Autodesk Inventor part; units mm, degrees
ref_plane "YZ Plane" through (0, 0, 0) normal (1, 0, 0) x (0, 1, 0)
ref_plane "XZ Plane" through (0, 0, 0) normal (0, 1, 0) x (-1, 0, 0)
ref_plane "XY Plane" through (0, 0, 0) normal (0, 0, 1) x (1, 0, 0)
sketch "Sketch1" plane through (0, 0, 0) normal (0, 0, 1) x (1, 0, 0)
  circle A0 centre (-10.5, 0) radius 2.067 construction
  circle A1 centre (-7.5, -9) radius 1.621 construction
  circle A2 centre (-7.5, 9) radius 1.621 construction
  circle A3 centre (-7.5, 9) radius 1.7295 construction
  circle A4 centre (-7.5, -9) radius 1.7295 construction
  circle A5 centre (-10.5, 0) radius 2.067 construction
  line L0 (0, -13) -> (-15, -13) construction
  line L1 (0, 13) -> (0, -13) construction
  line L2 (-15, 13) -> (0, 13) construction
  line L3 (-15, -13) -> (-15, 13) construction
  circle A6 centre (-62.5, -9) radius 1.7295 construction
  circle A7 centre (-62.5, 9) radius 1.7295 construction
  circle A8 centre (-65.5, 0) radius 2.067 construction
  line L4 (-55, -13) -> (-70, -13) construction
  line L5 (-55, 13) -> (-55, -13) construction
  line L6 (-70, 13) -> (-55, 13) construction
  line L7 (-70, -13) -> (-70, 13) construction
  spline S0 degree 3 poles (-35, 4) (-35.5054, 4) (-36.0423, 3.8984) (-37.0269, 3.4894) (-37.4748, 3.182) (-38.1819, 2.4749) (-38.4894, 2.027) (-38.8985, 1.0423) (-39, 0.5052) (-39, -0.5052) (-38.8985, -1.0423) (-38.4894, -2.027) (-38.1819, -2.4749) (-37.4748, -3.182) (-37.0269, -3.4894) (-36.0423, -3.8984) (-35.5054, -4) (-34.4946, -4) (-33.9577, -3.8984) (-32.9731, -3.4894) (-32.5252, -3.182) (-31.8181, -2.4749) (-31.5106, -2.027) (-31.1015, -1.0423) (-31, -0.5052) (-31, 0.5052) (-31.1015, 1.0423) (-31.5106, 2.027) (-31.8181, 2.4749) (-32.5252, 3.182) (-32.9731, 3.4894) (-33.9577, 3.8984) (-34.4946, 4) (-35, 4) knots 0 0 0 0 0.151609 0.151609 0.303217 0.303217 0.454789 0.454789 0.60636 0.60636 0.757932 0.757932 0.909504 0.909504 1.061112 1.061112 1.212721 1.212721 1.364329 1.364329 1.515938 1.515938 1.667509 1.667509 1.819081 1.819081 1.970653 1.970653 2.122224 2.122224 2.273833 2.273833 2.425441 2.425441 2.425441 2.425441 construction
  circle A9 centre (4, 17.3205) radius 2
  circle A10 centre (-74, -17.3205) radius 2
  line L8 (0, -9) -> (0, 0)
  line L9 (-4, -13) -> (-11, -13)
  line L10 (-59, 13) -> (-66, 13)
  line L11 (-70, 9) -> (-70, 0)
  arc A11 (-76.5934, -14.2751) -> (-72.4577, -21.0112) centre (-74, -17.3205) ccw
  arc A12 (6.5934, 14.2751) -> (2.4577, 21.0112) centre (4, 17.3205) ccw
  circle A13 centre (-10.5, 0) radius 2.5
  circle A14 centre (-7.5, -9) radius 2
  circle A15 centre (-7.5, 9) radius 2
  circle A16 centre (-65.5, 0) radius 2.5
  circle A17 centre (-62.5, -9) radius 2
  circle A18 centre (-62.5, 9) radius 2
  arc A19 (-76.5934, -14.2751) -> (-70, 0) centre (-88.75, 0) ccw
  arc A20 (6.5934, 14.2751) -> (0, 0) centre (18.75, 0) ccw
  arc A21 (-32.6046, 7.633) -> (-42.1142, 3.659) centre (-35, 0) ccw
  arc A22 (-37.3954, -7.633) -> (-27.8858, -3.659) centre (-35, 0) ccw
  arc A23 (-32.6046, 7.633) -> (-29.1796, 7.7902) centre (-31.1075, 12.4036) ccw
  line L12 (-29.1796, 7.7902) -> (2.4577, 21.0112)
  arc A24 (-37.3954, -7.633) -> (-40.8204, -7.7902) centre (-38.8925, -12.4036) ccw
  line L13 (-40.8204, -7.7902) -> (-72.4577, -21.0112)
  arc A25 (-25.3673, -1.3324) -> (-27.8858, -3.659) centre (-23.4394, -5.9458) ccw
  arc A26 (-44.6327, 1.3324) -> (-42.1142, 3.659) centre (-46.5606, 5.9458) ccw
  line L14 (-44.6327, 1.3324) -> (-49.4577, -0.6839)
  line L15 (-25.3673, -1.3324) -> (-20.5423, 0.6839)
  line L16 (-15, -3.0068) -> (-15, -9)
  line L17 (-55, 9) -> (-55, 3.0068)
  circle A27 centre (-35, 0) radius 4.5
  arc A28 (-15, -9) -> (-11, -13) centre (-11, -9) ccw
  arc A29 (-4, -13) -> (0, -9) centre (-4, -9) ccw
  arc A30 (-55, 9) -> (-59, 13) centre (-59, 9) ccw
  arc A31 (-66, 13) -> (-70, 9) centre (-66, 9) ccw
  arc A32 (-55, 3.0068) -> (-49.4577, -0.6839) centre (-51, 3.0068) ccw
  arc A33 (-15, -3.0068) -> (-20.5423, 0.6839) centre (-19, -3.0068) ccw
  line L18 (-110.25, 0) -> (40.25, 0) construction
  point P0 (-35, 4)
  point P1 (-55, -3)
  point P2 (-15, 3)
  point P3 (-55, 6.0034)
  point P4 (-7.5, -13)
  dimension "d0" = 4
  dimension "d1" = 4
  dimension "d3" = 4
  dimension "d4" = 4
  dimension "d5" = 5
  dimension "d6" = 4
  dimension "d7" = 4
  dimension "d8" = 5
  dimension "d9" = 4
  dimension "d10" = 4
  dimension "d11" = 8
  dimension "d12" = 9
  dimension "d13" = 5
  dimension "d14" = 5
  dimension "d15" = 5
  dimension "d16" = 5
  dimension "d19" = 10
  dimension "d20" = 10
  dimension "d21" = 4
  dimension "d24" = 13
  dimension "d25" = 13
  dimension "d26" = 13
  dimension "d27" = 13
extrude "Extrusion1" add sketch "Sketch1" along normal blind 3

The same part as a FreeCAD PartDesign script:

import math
import FreeCAD as App
import Part
import Sketcher
from FreeCAD import Vector
Q = App.Units.Quantity

doc = App.newDocument("Part")
body = doc.addObject("PartDesign::Body", "Body")

# Sketch on XY plane
sketch1 = body.newObject("Sketcher::SketchObject", "Sketch")
sketch1.AttachmentSupport = (doc.getObject("XY_Plane"), [""])
sketch1.MapMode = "FlatFace"
sketch1.addGeometry(Part.ArcOfCircle(Part.Circle(Vector(-4, -9, 0), Vector(0, 0, 1), 4), math.radians(-90), math.radians(0)), False)
sketch1.addGeometry(Part.LineSegment(Vector(0, -9, 0), Vector(0, 0, 0)), False)
sketch1.addGeometry(Part.ArcOfCircle(Part.Circle(Vector(18.8, 0, 0), Vector(0, 0, 1), 18.7), math.radians(130), math.radians(180)), False)
sketch1.addGeometry(Part.ArcOfCircle(Part.Circle(Vector(4, 17.3, 0), Vector(0, 0, 1), 4), math.radians(-50), math.radians(113)), False)
sketch1.addGeometry(Part.LineSegment(Vector(2.5, 21, 0), Vector(-29.2, 7.8, 0)), False)
sketch1.addGeometry(Part.ArcOfCircle(Part.Circle(Vector(-31.1, 12.4, 0), Vector(0, 0, 1), 5), math.radians(-107), math.radians(-67)), False)
sketch1.addGeometry(Part.ArcOfCircle(Part.Circle(Vector(-35, 0, 0), Vector(0, 0, 1), 8), math.radians(73), math.radians(153)), False)
sketch1.addGeometry(Part.ArcOfCircle(Part.Circle(Vector(-46.6, 5.9, 0), Vector(0, 0, 1), 5), math.radians(-67), math.radians(-27)), False)
sketch1.addGeometry(Part.LineSegment(Vector(-44.6, 1.3, 0), Vector(-49.5, -0.7, 0)), False)
sketch1.addGeometry(Part.ArcOfCircle(Part.Circle(Vector(-51, 3, 0), Vector(0, 0, 1), 4), math.radians(180), math.radians(293)), False)
sketch1.addGeometry(Part.LineSegment(Vector(-55, 3, 0), Vector(-55, 9, 0)), False)
sketch1.addGeometry(Part.ArcOfCircle(Part.Circle(Vector(-59, 9, 0), Vector(0, 0, 1), 4), math.radians(0), math.radians(90)), False)
sketch1.addGeometry(Part.LineSegment(Vector(-59, 13, 0), Vector(-66, 13, 0)), False)
sketch1.addGeometry(Part.ArcOfCircle(Part.Circle(Vector(-66, 9, 0), Vector(0, 0, 1), 4), math.radians(90), math.radians(180)), False)
sketch1.addGeometry(Part.LineSegment(Vector(-70, 9, 0), Vector(-70, 0, 0)), False)
sketch1.addGeometry(Part.ArcOfCircle(Part.Circle(Vector(-88.8, 0, 0), Vector(0, 0, 1), 18.7), math.radians(-50), math.radians(0)), False)
sketch1.addGeometry(Part.ArcOfCircle(Part.Circle(Vector(-74, -17.3, 0), Vector(0, 0, 1), 4), math.radians(130), math.radians(293)), False)
sketch1.addGeometry(Part.LineSegment(Vector(-72.5, -21, 0), Vector(-40.8, -7.8, 0)), False)
sketch1.addGeometry(Part.ArcOfCircle(Part.Circle(Vector(-38.9, -12.4, 0), Vector(0, 0, 1), 5), math.radians(73), math.radians(113)), False)
sketch1.addGeometry(Part.ArcOfCircle(Part.Circle(Vector(-35, 0, 0), Vector(0, 0, 1), 8), math.radians(-107), math.radians(-27)), False)
sketch1.addGeometry(Part.ArcOfCircle(Part.Circle(Vector(-23.4, -5.9, 0), Vector(0, 0, 1), 5), math.radians(113), math.radians(153)), False)
sketch1.addGeometry(Part.LineSegment(Vector(-25.4, -1.3, 0), Vector(-20.5, 0.7, 0)), False)
sketch1.addGeometry(Part.ArcOfCircle(Part.Circle(Vector(-19, -3, 0), Vector(0, 0, 1), 4), math.radians(0), math.radians(113)), False)
sketch1.addGeometry(Part.LineSegment(Vector(-15, -3, 0), Vector(-15, -9, 0)), False)
sketch1.addGeometry(Part.ArcOfCircle(Part.Circle(Vector(-11, -9, 0), Vector(0, 0, 1), 4), math.radians(180), math.radians(270)), False)
sketch1.addGeometry(Part.LineSegment(Vector(-11, -13, 0), Vector(-4, -13, 0)), False)
sketch1.addGeometry(Part.Circle(Vector(-74, -17.3, 0), Vector(0, 0, 1), 2), False)
sketch1.addGeometry(Part.Circle(Vector(-62.5, -9, 0), Vector(0, 0, 1), 2), False)
sketch1.addGeometry(Part.Circle(Vector(-7.5, -9, 0), Vector(0, 0, 1), 2), False)
sketch1.addGeometry(Part.Circle(Vector(-65.5, 0, 0), Vector(0, 0, 1), 2.5), False)
sketch1.addGeometry(Part.Circle(Vector(-62.5, 9, 0), Vector(0, 0, 1), 2), False)
sketch1.addGeometry(Part.Circle(Vector(-35, 0, 0), Vector(0, 0, 1), 4.5), False)
sketch1.addGeometry(Part.Circle(Vector(-10.5, 0, 0), Vector(0, 0, 1), 2.5), False)
sketch1.addGeometry(Part.Circle(Vector(-7.5, 9, 0), Vector(0, 0, 1), 2), False)
sketch1.addGeometry(Part.Circle(Vector(4, 17.3, 0), Vector(0, 0, 1), 2), False)
sketch1.addConstraint(Sketcher.Constraint("Tangent", 0, 2, 1, 1))
sketch1.addConstraint(Sketcher.Constraint("Tangent", 1, 2, 2, 2))
sketch1.addConstraint(Sketcher.Constraint("Tangent", 2, 1, 3, 1))
sketch1.addConstraint(Sketcher.Constraint("Tangent", 3, 2, 4, 1))
sketch1.addConstraint(Sketcher.Constraint("Tangent", 4, 2, 5, 2))
sketch1.addConstraint(Sketcher.Constraint("Tangent", 5, 1, 6, 1))
sketch1.addConstraint(Sketcher.Constraint("Tangent", 6, 2, 7, 2))
sketch1.addConstraint(Sketcher.Constraint("Tangent", 7, 1, 8, 1))
sketch1.addConstraint(Sketcher.Constraint("Tangent", 8, 2, 9, 2))
sketch1.addConstraint(Sketcher.Constraint("Tangent", 9, 1, 10, 1))
sketch1.addConstraint(Sketcher.Constraint("Tangent", 10, 2, 11, 1))
sketch1.addConstraint(Sketcher.Constraint("Tangent", 11, 2, 12, 1))
sketch1.addConstraint(Sketcher.Constraint("Tangent", 12, 2, 13, 1))
sketch1.addConstraint(Sketcher.Constraint("Tangent", 13, 2, 14, 1))
sketch1.addConstraint(Sketcher.Constraint("Tangent", 14, 2, 15, 2))
sketch1.addConstraint(Sketcher.Constraint("Tangent", 15, 1, 16, 1))
sketch1.addConstraint(Sketcher.Constraint("Tangent", 16, 2, 17, 1))
sketch1.addConstraint(Sketcher.Constraint("Tangent", 17, 2, 18, 2))
sketch1.addConstraint(Sketcher.Constraint("Tangent", 18, 1, 19, 1))
sketch1.addConstraint(Sketcher.Constraint("Tangent", 19, 2, 20, 2))
sketch1.addConstraint(Sketcher.Constraint("Tangent", 20, 1, 21, 1))
sketch1.addConstraint(Sketcher.Constraint("Tangent", 21, 2, 22, 2))
sketch1.addConstraint(Sketcher.Constraint("Tangent", 22, 1, 23, 1))
sketch1.addConstraint(Sketcher.Constraint("Tangent", 23, 2, 24, 1))
sketch1.addConstraint(Sketcher.Constraint("Tangent", 24, 2, 25, 1))
sketch1.addConstraint(Sketcher.Constraint("Tangent", 25, 2, 0, 1))
sketch1.addConstraint(Sketcher.Constraint("Vertical", 1))
sketch1.addConstraint(Sketcher.Constraint("Vertical", 10))
sketch1.addConstraint(Sketcher.Constraint("Horizontal", 12))
sketch1.addConstraint(Sketcher.Constraint("Vertical", 14))
sketch1.addConstraint(Sketcher.Constraint("Vertical", 23))
sketch1.addConstraint(Sketcher.Constraint("Horizontal", 25))
sketch1.addConstraint(Sketcher.Constraint("Coincident", 1, 2, -1, 1))
sketch1.addConstraint(Sketcher.Constraint("Coincident", 19, 3, 6, 3))
sketch1.addConstraint(Sketcher.Constraint("Coincident", 26, 3, 16, 3))
sketch1.addConstraint(Sketcher.Constraint("Coincident", 31, 3, 6, 3))
sketch1.addConstraint(Sketcher.Constraint("Coincident", 34, 3, 3, 3))
sketch1.addConstraint(Sketcher.Constraint("Equal", 0, 3))
sketch1.addConstraint(Sketcher.Constraint("Equal", 5, 7))
sketch1.addConstraint(Sketcher.Constraint("Equal", 3, 9))
sketch1.addConstraint(Sketcher.Constraint("Equal", 9, 11))
sketch1.addConstraint(Sketcher.Constraint("Equal", 11, 13))
sketch1.addConstraint(Sketcher.Constraint("Equal", 2, 15))
sketch1.addConstraint(Sketcher.Constraint("Equal", 13, 16))
sketch1.addConstraint(Sketcher.Constraint("Equal", 7, 18))
sketch1.addConstraint(Sketcher.Constraint("Equal", 6, 19))
sketch1.addConstraint(Sketcher.Constraint("Equal", 18, 20))
sketch1.addConstraint(Sketcher.Constraint("Equal", 16, 22))
sketch1.addConstraint(Sketcher.Constraint("Equal", 22, 24))
sketch1.addConstraint(Sketcher.Constraint("Equal", 26, 27))
sketch1.addConstraint(Sketcher.Constraint("Equal", 27, 28))
sketch1.addConstraint(Sketcher.Constraint("Equal", 28, 30))
sketch1.addConstraint(Sketcher.Constraint("Equal", 29, 32))
sketch1.addConstraint(Sketcher.Constraint("Equal", 30, 33))
sketch1.addConstraint(Sketcher.Constraint("Equal", 33, 34))
sketch1.addConstraint(Sketcher.Constraint("Symmetric", 27, 3, 30, 3, -1))
sketch1.addConstraint(Sketcher.Constraint("Symmetric", 28, 3, 33, 3, -1))
sketch1.addConstraint(Sketcher.Constraint("PointOnObject", 6, 3, -1))
sketch1.addConstraint(Sketcher.Constraint("PointOnObject", 15, 3, -1))
sketch1.addConstraint(Sketcher.Constraint("PointOnObject", 29, 3, -1))
sketch1.addConstraint(Sketcher.Constraint("PointOnObject", 32, 3, -1))
sketch1.addConstraint(Sketcher.Constraint("Parallel", 4, 8))
sketch1.addConstraint(Sketcher.Constraint("Parallel", 8, 17))
sketch1.addConstraint(Sketcher.Constraint("Parallel", 17, 21))
sketch1.addConstraint(Sketcher.Constraint("Horizontal", 24, 3, 27, 3))
sketch1.addConstraint(Sketcher.Constraint("Horizontal", 27, 3, 28, 3))
sketch1.addConstraint(Sketcher.Constraint("Horizontal", 13, 3, 30, 3))
sketch1.addConstraint(Sketcher.Constraint("Equal", 12, 25))
sketch1.addConstraint(Sketcher.Constraint("Equal", 10, 23))
sketch1.addConstraint(Sketcher.Constraint("Equal", 4, 17))
sketch1.addConstraint(Sketcher.Constraint("Equal", 8, 21))
sketch1.addConstraint(Sketcher.Constraint("Diameter", 26, Q("4 mm")))
sketch1.addConstraint(Sketcher.Constraint("Diameter", 29, Q("5 mm")))
sketch1.addConstraint(Sketcher.Constraint("Diameter", 31, Q("9 mm")))
sketch1.addConstraint(Sketcher.Constraint("Radius", 0, Q("4 mm")))
sketch1.addConstraint(Sketcher.Constraint("Radius", 5, Q("5 mm")))
sketch1.addConstraint(Sketcher.Constraint("Radius", 6, Q("8 mm")))
sketch1.addConstraint(Sketcher.Constraint("DistanceY", 1, 1, 1, 2, Q("9 mm")))
sketch1.addConstraint(Sketcher.Constraint("DistanceX", -1, 1, 3, 3, Q("4 mm")))
sketch1.addConstraint(Sketcher.Constraint("DistanceX", 12, 2, 12, 1, Q("7 mm")))
sketch1.addConstraint(Sketcher.Constraint("Radius", 2, Q("18.75 mm")))
sketch1.addConstraint(Sketcher.Constraint("DistanceX", 6, 3, -1, 1, Q("35 mm")))
sketch1.addConstraint(Sketcher.Constraint("DistanceX", 29, 3, 27, 3, Q("3 mm")))
sketch1.addConstraint(Sketcher.Constraint("DistanceX", 32, 3, 28, 3, Q("3 mm")))
sketch1.addConstraint(Sketcher.Constraint("DistanceX", 27, 3, -1, 1, Q("62.5 mm")))
sketch1.addConstraint(Sketcher.Constraint("DistanceX", 28, 3, -1, 1, Q("7.5 mm")))
sketch1.addConstraint(Sketcher.Constraint("Angle", 4, Q("-157.3203 deg")))
sketch1.addConstraint(Sketcher.Constraint("DistanceY", 10, 1, 10, 2, Q("5.9932 mm")))
pad1 = body.newObject("PartDesign::Pad", "Pad")
pad1.Profile = sketch1
pad1.Length = 3

doc.recompute()
